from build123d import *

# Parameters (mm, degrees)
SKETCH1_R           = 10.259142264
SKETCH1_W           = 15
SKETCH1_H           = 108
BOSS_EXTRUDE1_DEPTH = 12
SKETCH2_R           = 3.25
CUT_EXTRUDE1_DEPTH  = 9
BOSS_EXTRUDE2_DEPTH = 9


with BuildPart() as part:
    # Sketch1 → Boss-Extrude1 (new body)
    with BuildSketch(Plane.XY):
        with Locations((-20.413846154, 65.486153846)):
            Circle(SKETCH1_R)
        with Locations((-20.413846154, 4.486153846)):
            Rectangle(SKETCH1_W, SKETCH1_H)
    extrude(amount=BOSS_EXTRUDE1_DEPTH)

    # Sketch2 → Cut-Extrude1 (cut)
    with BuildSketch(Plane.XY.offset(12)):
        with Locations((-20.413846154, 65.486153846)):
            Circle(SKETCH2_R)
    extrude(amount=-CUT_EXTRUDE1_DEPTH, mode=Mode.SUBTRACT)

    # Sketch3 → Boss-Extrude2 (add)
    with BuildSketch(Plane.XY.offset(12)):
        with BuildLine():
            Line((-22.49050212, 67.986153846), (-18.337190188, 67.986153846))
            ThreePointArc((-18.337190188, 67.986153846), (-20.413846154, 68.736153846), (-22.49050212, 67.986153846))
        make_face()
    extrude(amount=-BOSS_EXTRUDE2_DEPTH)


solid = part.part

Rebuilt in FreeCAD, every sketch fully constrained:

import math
import FreeCAD as App
import Part
import Sketcher

V = App.Vector
Q = App.Units.Quantity

doc = App.newDocument("Part")
body = doc.addObject("PartDesign::Body", "Body")

# Sketch on XY plane
sketch1 = body.newObject("Sketcher::SketchObject", "Sketch")
sketch1.AttachmentSupport = (doc.getObject("XY_Plane"), [""])
sketch1.MapMode = "FlatFace"
sketch1.addGeometry(Part.ArcOfCircle(Part.Circle(V(-20, 65, 0), V(0, 0, 1), 10), math.radians(-43), math.radians(223)), False)
sketch1.addGeometry(Part.LineSegment(V(-28, 58, 0), V(-28, -50, 0)), False)
sketch1.addGeometry(Part.LineSegment(V(-28, -50, 0), V(-13, -50, 0)), False)
sketch1.addGeometry(Part.LineSegment(V(-13, -50, 0), V(-13, 58, 0)), False)
sketch1.addConstraint(Sketcher.Constraint("Coincident", 0, 2, 1, 1))
sketch1.addConstraint(Sketcher.Constraint("Coincident", 1, 2, 2, 1))
sketch1.addConstraint(Sketcher.Constraint("Coincident", 2, 2, 3, 1))
sketch1.addConstraint(Sketcher.Constraint("Coincident", 3, 2, 0, 1))
sketch1.addConstraint(Sketcher.Constraint("Vertical", 1))
sketch1.addConstraint(Sketcher.Constraint("Horizontal", 2))
sketch1.addConstraint(Sketcher.Constraint("Vertical", 3))
sketch1.addConstraint(Sketcher.Constraint("Horizontal", 0, 2, 3, 2))
sketch1.addConstraint(Sketcher.Constraint("DistanceX", 2, 1, 2, 2, Q("15 mm")))
sketch1.addConstraint(Sketcher.Constraint("DistanceY", 1, 2, 1, 1, Q("108 mm")))
sketch1.addConstraint(Sketcher.Constraint("DistanceY", 0, 2, 0, 3, Q("7 mm")))
sketch1.addConstraint(Sketcher.Constraint("DistanceX", 0, 3, -1, 1, Q("20.413846 mm")))
sketch1.addConstraint(Sketcher.Constraint("DistanceY", -1, 1, 0, 3, Q("65.486154 mm")))
pad1 = body.newObject("PartDesign::Pad", "Pad")
pad1.Profile = sketch1
pad1.Length = 12

# Sketch on XY plane
sketch2 = body.newObject("Sketcher::SketchObject", "Sketch001")
sketch2.AttachmentSupport = (doc.getObject("XY_Plane"), [""])
sketch2.MapMode = "FlatFace"
sketch2.AttachmentOffset = App.Placement(V(0, 0, 12), App.Rotation())
sketch2.addGeometry(Part.Circle(V(-20.4, 65.5, 0), V(0, 0, 1), 3.2), False)
sketch2.addConstraint(Sketcher.Constraint("Diameter", 0, Q("6.5 mm")))
sketch2.addConstraint(Sketcher.Constraint("DistanceX", 0, 3, -1, 1, Q("20.413846 mm")))
sketch2.addConstraint(Sketcher.Constraint("DistanceY", -1, 1, 0, 3, Q("65.486154 mm")))
pocket1 = body.newObject("PartDesign::Pocket", "Pocket")
pocket1.Profile = sketch2
pocket1.Length = 9

# Sketch on XY plane
sketch3 = body.newObject("Sketcher::SketchObject", "Sketch002")
sketch3.AttachmentSupport = (doc.getObject("XY_Plane"), [""])
sketch3.MapMode = "FlatFace"
sketch3.AttachmentOffset = App.Placement(V(0, 0, 12), App.Rotation())
sketch3.addGeometry(Part.LineSegment(V(-22.5, 68, 0), V(-18.3, 68, 0)), False)
sketch3.addGeometry(Part.ArcOfCircle(Part.Circle(V(-20.4, 65.5, 0), V(0, 0, 1), 3.3), math.radians(50), math.radians(130)), False)
sketch3.addConstraint(Sketcher.Constraint("Coincident", 0, 1, 1, 2))
sketch3.addConstraint(Sketcher.Constraint("Coincident", 1, 1, 0, 2))
sketch3.addConstraint(Sketcher.Constraint("Horizontal", 0))
sketch3.addConstraint(Sketcher.Constraint("Radius", 1, Q("3.25 mm")))
sketch3.addConstraint(Sketcher.Constraint("DistanceY", 1, 3, 0, 1, Q("2.5 mm")))
sketch3.addConstraint(Sketcher.Constraint("DistanceX", 1, 1, -1, 1, Q("18.33719 mm")))
sketch3.addConstraint(Sketcher.Constraint("DistanceY", -1, 1, 1, 3, Q("65.486154 mm")))
pad2 = body.newObject("PartDesign::Pad", "Pad001")
pad2.Profile = sketch3
pad2.Length = 9
pad2.Reversed = True

doc.recompute()
